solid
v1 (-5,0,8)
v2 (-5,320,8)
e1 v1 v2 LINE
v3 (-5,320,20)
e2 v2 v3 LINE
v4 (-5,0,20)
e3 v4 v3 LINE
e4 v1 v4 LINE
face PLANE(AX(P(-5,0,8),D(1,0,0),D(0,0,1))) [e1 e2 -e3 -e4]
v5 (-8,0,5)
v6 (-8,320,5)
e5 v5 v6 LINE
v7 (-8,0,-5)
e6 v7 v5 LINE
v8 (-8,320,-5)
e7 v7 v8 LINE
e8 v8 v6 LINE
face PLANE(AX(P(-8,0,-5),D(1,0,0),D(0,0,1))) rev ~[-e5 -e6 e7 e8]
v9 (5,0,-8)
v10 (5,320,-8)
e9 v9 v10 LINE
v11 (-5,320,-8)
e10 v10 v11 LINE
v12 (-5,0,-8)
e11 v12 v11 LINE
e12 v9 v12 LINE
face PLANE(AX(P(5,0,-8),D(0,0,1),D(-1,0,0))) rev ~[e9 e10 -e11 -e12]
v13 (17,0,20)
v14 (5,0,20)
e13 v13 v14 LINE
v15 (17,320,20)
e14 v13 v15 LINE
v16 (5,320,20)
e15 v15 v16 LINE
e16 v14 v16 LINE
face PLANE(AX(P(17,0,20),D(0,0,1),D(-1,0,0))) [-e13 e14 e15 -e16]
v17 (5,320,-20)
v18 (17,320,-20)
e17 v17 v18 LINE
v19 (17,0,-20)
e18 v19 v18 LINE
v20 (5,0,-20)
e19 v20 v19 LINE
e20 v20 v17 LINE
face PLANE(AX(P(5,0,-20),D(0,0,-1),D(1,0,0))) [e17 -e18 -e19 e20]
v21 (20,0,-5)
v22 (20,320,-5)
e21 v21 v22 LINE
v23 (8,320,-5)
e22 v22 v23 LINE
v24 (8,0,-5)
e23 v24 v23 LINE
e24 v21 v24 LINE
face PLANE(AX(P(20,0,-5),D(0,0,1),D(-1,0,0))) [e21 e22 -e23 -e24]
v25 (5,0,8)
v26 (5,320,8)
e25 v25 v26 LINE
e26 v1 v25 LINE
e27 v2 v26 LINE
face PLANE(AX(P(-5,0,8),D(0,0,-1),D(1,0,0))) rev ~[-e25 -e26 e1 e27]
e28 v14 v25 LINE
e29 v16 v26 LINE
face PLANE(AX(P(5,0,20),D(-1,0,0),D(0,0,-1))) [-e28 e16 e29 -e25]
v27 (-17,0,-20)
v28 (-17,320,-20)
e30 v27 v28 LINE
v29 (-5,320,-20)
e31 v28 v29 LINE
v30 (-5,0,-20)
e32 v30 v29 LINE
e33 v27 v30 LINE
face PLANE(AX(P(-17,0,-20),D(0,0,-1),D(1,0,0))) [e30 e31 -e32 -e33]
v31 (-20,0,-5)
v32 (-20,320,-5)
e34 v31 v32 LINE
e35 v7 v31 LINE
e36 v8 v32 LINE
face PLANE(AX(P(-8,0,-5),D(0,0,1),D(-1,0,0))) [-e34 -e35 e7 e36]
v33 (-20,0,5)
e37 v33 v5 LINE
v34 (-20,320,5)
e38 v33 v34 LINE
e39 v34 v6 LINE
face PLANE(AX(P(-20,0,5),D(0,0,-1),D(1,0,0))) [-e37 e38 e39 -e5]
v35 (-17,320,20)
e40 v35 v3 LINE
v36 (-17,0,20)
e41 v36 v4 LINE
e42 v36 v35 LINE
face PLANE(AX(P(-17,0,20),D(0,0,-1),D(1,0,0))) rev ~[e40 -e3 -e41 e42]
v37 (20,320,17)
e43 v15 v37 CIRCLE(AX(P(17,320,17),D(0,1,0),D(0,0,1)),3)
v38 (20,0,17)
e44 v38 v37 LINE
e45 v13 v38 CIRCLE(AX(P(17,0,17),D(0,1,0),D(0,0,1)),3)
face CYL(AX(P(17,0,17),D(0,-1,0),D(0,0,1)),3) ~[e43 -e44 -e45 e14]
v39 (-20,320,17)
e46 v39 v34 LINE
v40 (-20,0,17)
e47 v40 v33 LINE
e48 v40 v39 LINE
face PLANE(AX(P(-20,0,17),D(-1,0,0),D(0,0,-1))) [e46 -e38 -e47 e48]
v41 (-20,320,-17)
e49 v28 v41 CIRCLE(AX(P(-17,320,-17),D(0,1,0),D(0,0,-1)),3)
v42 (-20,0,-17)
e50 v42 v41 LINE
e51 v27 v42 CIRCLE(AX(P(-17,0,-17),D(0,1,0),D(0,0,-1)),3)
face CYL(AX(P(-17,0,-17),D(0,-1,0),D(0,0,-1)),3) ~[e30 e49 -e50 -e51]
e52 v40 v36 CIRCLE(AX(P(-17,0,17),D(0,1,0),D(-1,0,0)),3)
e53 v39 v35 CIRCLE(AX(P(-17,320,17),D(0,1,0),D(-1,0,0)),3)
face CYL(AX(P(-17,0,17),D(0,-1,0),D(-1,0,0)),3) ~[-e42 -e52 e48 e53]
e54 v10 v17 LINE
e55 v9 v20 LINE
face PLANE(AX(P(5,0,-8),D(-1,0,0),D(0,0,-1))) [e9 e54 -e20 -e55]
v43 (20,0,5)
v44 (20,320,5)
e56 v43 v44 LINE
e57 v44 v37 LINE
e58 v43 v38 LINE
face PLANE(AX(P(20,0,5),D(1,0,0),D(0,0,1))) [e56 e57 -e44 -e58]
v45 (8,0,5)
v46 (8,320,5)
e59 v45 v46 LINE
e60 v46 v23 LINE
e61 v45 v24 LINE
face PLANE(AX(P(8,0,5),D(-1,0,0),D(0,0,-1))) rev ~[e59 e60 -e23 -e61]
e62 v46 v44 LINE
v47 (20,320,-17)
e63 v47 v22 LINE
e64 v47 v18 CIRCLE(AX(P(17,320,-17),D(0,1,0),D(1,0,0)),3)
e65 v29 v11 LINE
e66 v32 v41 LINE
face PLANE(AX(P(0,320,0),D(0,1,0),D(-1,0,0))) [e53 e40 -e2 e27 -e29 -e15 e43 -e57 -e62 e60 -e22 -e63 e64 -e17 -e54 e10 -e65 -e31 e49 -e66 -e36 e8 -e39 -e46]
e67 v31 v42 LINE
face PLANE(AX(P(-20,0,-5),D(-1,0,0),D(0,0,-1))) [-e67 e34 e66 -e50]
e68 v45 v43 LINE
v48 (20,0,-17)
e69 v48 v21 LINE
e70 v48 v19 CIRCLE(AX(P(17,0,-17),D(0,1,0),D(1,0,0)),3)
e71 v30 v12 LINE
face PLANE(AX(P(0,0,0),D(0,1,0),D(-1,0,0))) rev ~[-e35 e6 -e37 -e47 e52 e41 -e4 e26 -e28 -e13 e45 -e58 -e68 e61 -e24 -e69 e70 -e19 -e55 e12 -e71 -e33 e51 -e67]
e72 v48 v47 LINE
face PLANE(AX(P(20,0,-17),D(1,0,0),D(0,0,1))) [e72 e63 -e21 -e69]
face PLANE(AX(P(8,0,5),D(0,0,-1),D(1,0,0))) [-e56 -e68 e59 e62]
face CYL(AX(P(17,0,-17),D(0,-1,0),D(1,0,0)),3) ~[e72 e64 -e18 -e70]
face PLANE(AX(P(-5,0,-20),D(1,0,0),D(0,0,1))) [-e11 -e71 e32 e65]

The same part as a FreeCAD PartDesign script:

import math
import FreeCAD as App
import Part
import Sketcher

V = App.Vector

doc = App.newDocument("Part")
body = doc.addObject("PartDesign::Body", "Body")

# Sketch on XZ plane
sketch1 = body.newObject("Sketcher::SketchObject", "Sketch")
sketch1.AttachmentSupport = (doc.getObject("XZ_Plane"), [""])
sketch1.MapMode = "FlatFace"
sketch1.addGeometry([
    Part.LineSegment(V(5, 8, 0), V(5, 20, 0)),  # 0
    Part.LineSegment(V(5, 20, 0), V(17, 20, 0)),  # 1
    Part.ArcOfCircle(Part.Circle(V(17, 17, 0), V(0, 0, 1), 3), math.radians(0), math.radians(90)),  # 2
    Part.LineSegment(V(20, 17, 0), V(20, 5, 0)),  # 3
    Part.LineSegment(V(20, 5, 0), V(8, 5, 0)),  # 4
    Part.LineSegment(V(8, 5, 0), V(8, -5, 0)),  # 5
    Part.LineSegment(V(8, -5, 0), V(20, -5, 0)),  # 6
    Part.LineSegment(V(20, -5, 0), V(20, -17, 0)),  # 7
    Part.ArcOfCircle(Part.Circle(V(17, -17, 0), V(0, 0, 1), 3), math.radians(-90), math.radians(0)),  # 8
    Part.LineSegment(V(17, -20, 0), V(5, -20, 0)),  # 9
    Part.LineSegment(V(5, -20, 0), V(5, -8, 0)),  # 10
    Part.LineSegment(V(5, -8, 0), V(-5, -8, 0)),  # 11
    Part.LineSegment(V(-5, -8, 0), V(-5, -20, 0)),  # 12
    Part.LineSegment(V(-5, -20, 0), V(-17, -20, 0)),  # 13
    Part.ArcOfCircle(Part.Circle(V(-17, -17, 0), V(0, 0, 1), 3), math.radians(180), math.radians(270)),  # 14
    Part.LineSegment(V(-20, -17, 0), V(-20, -5, 0)),  # 15
    Part.LineSegment(V(-20, -5, 0), V(-8, -5, 0)),  # 16
    Part.LineSegment(V(-8, -5, 0), V(-8, 5, 0)),  # 17
    Part.LineSegment(V(-8, 5, 0), V(-20, 5, 0)),  # 18
    Part.LineSegment(V(-20, 5, 0), V(-20, 17, 0)),  # 19
    Part.ArcOfCircle(Part.Circle(V(-17, 17, 0), V(0, 0, 1), 3), math.radians(90), math.radians(180)),  # 20
    Part.LineSegment(V(-17, 20, 0), V(-5, 20, 0)),  # 21
    Part.LineSegment(V(-5, 20, 0), V(-5, 8, 0)),  # 22
    Part.LineSegment(V(-5, 8, 0), V(5, 8, 0)),  # 23
], False)
sketch1.addConstraint([
    Sketcher.Constraint("Coincident", 0, 2, 1, 1),
    Sketcher.Constraint("Tangent", 1, 2, 2, 2),
    Sketcher.Constraint("Tangent", 2, 1, 3, 1),
    Sketcher.Constraint("Coincident", 3, 2, 4, 1),
    Sketcher.Constraint("Coincident", 4, 2, 5, 1),
    Sketcher.Constraint("Coincident", 5, 2, 6, 1),
    Sketcher.Constraint("Coincident", 6, 2, 7, 1),
    Sketcher.Constraint("Tangent", 7, 2, 8, 2),
    Sketcher.Constraint("Tangent", 8, 1, 9, 1),
    Sketcher.Constraint("Coincident", 9, 2, 10, 1),
    Sketcher.Constraint("Coincident", 10, 2, 11, 1),
    Sketcher.Constraint("Coincident", 11, 2, 12, 1),
    Sketcher.Constraint("Coincident", 12, 2, 13, 1),
    Sketcher.Constraint("Tangent", 13, 2, 14, 2),
    Sketcher.Constraint("Tangent", 14, 1, 15, 1),
    Sketcher.Constraint("Coincident", 15, 2, 16, 1),
    Sketcher.Constraint("Coincident", 16, 2, 17, 1),
    Sketcher.Constraint("Coincident", 17, 2, 18, 1),
    Sketcher.Constraint("Coincident", 18, 2, 19, 1),
    Sketcher.Constraint("Tangent", 19, 2, 20, 2),
    Sketcher.Constraint("Tangent", 20, 1, 21, 1),
    Sketcher.Constraint("Coincident", 21, 2, 22, 1),
    Sketcher.Constraint("Coincident", 22, 2, 23, 1),
    Sketcher.Constraint("Coincident", 23, 2, 0, 1),
    Sketcher.Constraint("Vertical", 0),
    Sketcher.Constraint("Horizontal", 1),
    Sketcher.Constraint("Vertical", 3),
    Sketcher.Constraint("Horizontal", 4),
    Sketcher.Constraint("Vertical", 5),
    Sketcher.Constraint("Horizontal", 6),
    Sketcher.Constraint("Vertical", 7),
    Sketcher.Constraint("Horizontal", 9),
    Sketcher.Constraint("Vertical", 10),
    Sketcher.Constraint("Horizontal", 11),
    Sketcher.Constraint("Vertical", 12),
    Sketcher.Constraint("Horizontal", 13),
    Sketcher.Constraint("Vertical", 15),
    Sketcher.Constraint("Horizontal", 16),
    Sketcher.Constraint("Vertical", 17),
    Sketcher.Constraint("Horizontal", 18),
    Sketcher.Constraint("Vertical", 19),
    Sketcher.Constraint("Horizontal", 21),
    Sketcher.Constraint("Vertical", 22),
    Sketcher.Constraint("Horizontal", 23),
    Sketcher.Constraint("Equal", 2, 8),
    Sketcher.Constraint("Equal", 8, 14),
    Sketcher.Constraint("Equal", 14, 20),
    Sketcher.Constraint("Symmetric", 2, 3, 14, 3, -1, 1),
    Sketcher.Constraint("Symmetric", 8, 3, 20, 3, -1, 1),
    Sketcher.Constraint("Symmetric", 4, 2, 16, 2, -1, 1),
    Sketcher.Constraint("Symmetric", 10, 2, 22, 2, -1, 1),
    Sketcher.Constraint("Symmetric", 8, 3, 14, 3, -2),
    Sketcher.Constraint("Horizontal", 6, 2, 15, 2),
    Sketcher.Constraint("Horizontal", 4, 2, 17, 2),
    Sketcher.Constraint("Vertical", 0, 2, 9, 2),
    Sketcher.Constraint("Vertical", 12, 2, 21, 2),
    Sketcher.Constraint("Equal", 1, 4),
    Sketcher.Constraint("Equal", 21, 0),
    Sketcher.Constraint("Equal", 0, 3),
    Sketcher.Constraint("Equal", 23, 5),
    Sketcher.Constraint("Radius", 2, 3.0),
    Sketcher.Constraint("DistanceX", 1, 1, 1, 2, 12.0),
    Sketcher.Constraint("DistanceX", 11, 2, 11, 1, 10.0),
])
pad1 = body.newObject("PartDesign::Pad", "Pad")
pad1.Profile = sketch1
pad1.Length = 320
pad1.Reversed = True

doc.recompute()
